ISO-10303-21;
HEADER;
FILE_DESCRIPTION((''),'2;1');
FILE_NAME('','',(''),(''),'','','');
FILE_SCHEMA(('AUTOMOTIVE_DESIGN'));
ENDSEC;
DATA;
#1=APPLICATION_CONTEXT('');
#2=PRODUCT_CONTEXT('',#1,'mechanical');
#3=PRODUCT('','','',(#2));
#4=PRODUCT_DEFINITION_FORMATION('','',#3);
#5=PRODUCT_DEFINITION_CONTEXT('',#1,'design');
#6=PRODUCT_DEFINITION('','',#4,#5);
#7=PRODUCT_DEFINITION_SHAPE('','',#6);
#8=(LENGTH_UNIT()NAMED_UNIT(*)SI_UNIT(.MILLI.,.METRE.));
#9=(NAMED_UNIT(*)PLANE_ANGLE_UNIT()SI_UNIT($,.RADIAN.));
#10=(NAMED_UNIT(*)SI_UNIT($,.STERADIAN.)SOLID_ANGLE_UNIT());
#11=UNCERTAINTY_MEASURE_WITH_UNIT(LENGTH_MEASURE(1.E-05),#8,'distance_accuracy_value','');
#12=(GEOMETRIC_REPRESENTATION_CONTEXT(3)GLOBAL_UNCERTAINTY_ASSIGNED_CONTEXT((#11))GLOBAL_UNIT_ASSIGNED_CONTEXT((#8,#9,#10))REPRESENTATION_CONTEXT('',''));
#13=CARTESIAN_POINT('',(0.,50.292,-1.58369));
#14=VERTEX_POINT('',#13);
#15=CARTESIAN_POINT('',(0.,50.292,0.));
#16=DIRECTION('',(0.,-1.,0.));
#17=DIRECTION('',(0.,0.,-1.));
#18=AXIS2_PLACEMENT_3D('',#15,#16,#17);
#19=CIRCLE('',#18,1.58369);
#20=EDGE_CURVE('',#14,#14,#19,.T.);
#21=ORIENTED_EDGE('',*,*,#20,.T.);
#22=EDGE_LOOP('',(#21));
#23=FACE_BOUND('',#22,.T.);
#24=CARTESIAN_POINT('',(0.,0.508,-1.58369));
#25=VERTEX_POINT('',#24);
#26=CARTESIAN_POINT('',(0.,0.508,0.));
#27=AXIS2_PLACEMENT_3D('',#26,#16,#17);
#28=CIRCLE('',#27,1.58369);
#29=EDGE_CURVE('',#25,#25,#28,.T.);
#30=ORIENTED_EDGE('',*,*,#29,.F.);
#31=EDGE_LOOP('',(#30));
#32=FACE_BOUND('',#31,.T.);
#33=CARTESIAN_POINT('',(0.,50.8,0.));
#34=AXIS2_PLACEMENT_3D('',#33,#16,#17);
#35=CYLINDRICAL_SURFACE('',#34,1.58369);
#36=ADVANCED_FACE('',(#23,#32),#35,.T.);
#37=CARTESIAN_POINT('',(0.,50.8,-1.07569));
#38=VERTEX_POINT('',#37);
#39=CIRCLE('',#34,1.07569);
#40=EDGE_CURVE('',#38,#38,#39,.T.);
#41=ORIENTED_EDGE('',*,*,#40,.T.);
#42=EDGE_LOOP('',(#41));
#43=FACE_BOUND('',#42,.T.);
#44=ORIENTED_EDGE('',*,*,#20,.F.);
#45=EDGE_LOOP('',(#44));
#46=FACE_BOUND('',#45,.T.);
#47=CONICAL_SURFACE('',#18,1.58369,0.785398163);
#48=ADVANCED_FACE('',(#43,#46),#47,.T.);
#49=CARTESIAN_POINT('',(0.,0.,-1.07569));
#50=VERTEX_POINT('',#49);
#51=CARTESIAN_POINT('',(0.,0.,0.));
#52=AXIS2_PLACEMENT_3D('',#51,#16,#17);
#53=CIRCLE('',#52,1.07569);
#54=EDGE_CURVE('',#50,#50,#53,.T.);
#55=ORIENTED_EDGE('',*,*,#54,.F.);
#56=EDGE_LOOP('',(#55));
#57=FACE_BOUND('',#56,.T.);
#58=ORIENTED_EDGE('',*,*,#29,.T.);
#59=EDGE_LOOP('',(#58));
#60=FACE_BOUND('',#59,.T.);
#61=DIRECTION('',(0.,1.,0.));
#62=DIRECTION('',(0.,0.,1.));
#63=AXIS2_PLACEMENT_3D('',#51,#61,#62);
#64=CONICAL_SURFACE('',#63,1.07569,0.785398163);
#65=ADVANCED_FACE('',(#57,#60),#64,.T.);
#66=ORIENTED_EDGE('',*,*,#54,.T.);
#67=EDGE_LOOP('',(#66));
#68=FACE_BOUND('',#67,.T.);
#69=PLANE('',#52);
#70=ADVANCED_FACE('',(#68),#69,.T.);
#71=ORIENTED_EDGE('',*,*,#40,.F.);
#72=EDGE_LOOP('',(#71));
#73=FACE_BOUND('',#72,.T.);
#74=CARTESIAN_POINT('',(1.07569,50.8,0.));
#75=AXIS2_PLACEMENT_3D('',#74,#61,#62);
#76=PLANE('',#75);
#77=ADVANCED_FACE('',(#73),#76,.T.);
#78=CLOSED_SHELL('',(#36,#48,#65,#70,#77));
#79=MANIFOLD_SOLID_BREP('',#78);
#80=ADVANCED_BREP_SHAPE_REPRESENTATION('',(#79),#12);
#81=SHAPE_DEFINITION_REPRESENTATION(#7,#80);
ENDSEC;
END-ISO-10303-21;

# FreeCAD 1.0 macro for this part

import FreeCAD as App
import Part
import Sketcher
Q = App.Units.Quantity


def add_polygon(sketch, points):
    """Adds a closed chain of lines whose ends are joined by coincident constraints."""
    first, n = sketch.GeometryCount, len(points)
    for a, b in zip(points, points[1:] + points[:1]):
        sketch.addGeometry(Part.LineSegment(App.Vector(*a, 0), App.Vector(*b, 0)), False)
    for i in range(n):
        sketch.addConstraint(Sketcher.Constraint("Coincident", first + i, 2, first + (i + 1) % n, 1))

doc = App.newDocument("Part")
body = doc.addObject("PartDesign::Body", "Body")

sketch1 = body.newObject("Sketcher::SketchObject", "Sketch")
sketch1.AttachmentSupport = (doc.getObject("XY_Plane"), [""])
sketch1.MapMode = "FlatFace"
add_polygon(sketch1, [(1.1, 50.8), (0, 50.8), (0, 0), (1.1, 0), (1.6, 0.5), (1.6, 50.3)])
sketch1.addConstraint(Sketcher.Constraint("Horizontal", 0))
sketch1.addConstraint(Sketcher.Constraint("Vertical", 1))
sketch1.addConstraint(Sketcher.Constraint("Horizontal", 2))
sketch1.addConstraint(Sketcher.Constraint("Vertical", 4))
sketch1.addConstraint(Sketcher.Constraint("Coincident", 1, 2, -1, 1))
sketch1.addConstraint(Sketcher.Constraint("Perpendicular", 3, 5))
sketch1.addConstraint(Sketcher.Constraint("Vertical", 2, 2, 5, 2))
sketch1.addConstraint(Sketcher.Constraint("Equal", 3, 5))
sketch1.addConstraint(Sketcher.Constraint("DistanceY", 1, 2, 1, 1, Q("2 in")))
sketch1.addConstraint(Sketcher.Constraint("DistanceY", 4, 1, 4, 2, Q("1.96 in")))
sketch1.addConstraint(Sketcher.Constraint("DistanceX", 0, 2, 0, 1, 1.07569))
revolution = body.newObject("PartDesign::Revolution", "Revolution")
revolution.Profile = sketch1
revolution.ReferenceAxis = (sketch1, ["V_Axis"])
revolution.Angle = 360

doc.recompute()
